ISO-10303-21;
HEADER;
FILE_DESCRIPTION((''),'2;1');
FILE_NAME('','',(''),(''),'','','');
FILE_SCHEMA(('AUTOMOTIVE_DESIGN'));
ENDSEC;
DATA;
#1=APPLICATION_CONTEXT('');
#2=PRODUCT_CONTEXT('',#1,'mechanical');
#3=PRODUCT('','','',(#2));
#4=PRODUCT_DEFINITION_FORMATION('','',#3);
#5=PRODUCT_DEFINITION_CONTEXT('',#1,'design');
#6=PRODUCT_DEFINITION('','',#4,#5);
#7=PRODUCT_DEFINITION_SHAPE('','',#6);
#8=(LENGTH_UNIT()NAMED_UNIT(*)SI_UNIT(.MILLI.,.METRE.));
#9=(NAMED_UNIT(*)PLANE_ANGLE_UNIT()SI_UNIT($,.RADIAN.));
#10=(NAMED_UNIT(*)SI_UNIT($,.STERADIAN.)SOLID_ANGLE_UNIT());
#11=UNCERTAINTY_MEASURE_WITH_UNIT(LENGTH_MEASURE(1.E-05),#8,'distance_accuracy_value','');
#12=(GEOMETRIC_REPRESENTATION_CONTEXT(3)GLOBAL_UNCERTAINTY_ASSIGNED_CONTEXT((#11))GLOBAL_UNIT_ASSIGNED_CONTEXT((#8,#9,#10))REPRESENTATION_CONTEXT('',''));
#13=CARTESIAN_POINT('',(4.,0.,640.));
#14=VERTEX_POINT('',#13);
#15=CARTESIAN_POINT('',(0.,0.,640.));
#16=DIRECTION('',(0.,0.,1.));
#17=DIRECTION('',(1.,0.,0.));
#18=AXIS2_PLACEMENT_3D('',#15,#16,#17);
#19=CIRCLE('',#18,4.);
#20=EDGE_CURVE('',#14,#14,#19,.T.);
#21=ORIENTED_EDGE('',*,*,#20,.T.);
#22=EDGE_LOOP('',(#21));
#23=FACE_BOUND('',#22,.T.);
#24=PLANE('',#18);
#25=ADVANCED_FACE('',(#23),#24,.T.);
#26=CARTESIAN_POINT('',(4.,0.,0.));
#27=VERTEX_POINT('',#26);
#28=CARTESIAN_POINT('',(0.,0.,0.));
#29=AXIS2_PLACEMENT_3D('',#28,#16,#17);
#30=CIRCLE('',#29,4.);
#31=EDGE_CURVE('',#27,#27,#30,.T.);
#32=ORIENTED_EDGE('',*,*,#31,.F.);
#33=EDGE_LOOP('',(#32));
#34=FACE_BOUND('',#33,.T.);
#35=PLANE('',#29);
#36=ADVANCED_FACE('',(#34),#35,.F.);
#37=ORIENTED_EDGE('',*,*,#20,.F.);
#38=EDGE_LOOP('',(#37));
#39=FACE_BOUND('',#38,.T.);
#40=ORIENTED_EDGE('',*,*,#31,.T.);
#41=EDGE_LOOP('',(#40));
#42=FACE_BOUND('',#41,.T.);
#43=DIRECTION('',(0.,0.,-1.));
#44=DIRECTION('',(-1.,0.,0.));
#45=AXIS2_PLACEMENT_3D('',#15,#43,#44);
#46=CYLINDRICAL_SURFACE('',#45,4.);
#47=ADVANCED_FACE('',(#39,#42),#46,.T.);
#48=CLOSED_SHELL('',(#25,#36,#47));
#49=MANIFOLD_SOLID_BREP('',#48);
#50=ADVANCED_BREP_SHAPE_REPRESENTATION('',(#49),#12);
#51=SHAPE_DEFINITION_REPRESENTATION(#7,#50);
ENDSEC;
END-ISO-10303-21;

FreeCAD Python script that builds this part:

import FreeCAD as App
import Part
import Sketcher

V = App.Vector

doc = App.newDocument("Part")
params = doc.addObject("Spreadsheet::Sheet", "Params")
for row, (alias, value) in enumerate([
    ("sketch1_diameter", "8 mm"),
    ("pad1_length", "640 mm"),
], start=1):
    params.set(f"A{row}", alias)
    params.set(f"B{row}", "=" + value)
    params.setAlias(f"B{row}", alias)

body = doc.addObject("PartDesign::Body", "Body")

# Sketch on XY plane
sketch1 = doc.addObject("Sketcher::SketchObject", "Sketch")
body.addObject(sketch1)
sketch1.AttachmentSupport = (doc.XY_Plane, [""])
sketch1.MapMode = "FlatFace"
sketch1.addGeometry(Part.Circle(V(0, 0, 0), V(0, 0, 1), 4), False)
sketch1.addConstraint(Sketcher.Constraint("Coincident", 0, 3, -1, 1))
sketch1.addConstraint(Sketcher.Constraint("Diameter", 0, 8.0))
sketch1.setExpression("Constraints[1]", "Params.sketch1_diameter")
pad1 = doc.addObject("PartDesign::Pad", "Pad")
body.addObject(pad1)
pad1.Profile = sketch1
pad1.setExpression("Length", "Params.pad1_length")

doc.recompute()
